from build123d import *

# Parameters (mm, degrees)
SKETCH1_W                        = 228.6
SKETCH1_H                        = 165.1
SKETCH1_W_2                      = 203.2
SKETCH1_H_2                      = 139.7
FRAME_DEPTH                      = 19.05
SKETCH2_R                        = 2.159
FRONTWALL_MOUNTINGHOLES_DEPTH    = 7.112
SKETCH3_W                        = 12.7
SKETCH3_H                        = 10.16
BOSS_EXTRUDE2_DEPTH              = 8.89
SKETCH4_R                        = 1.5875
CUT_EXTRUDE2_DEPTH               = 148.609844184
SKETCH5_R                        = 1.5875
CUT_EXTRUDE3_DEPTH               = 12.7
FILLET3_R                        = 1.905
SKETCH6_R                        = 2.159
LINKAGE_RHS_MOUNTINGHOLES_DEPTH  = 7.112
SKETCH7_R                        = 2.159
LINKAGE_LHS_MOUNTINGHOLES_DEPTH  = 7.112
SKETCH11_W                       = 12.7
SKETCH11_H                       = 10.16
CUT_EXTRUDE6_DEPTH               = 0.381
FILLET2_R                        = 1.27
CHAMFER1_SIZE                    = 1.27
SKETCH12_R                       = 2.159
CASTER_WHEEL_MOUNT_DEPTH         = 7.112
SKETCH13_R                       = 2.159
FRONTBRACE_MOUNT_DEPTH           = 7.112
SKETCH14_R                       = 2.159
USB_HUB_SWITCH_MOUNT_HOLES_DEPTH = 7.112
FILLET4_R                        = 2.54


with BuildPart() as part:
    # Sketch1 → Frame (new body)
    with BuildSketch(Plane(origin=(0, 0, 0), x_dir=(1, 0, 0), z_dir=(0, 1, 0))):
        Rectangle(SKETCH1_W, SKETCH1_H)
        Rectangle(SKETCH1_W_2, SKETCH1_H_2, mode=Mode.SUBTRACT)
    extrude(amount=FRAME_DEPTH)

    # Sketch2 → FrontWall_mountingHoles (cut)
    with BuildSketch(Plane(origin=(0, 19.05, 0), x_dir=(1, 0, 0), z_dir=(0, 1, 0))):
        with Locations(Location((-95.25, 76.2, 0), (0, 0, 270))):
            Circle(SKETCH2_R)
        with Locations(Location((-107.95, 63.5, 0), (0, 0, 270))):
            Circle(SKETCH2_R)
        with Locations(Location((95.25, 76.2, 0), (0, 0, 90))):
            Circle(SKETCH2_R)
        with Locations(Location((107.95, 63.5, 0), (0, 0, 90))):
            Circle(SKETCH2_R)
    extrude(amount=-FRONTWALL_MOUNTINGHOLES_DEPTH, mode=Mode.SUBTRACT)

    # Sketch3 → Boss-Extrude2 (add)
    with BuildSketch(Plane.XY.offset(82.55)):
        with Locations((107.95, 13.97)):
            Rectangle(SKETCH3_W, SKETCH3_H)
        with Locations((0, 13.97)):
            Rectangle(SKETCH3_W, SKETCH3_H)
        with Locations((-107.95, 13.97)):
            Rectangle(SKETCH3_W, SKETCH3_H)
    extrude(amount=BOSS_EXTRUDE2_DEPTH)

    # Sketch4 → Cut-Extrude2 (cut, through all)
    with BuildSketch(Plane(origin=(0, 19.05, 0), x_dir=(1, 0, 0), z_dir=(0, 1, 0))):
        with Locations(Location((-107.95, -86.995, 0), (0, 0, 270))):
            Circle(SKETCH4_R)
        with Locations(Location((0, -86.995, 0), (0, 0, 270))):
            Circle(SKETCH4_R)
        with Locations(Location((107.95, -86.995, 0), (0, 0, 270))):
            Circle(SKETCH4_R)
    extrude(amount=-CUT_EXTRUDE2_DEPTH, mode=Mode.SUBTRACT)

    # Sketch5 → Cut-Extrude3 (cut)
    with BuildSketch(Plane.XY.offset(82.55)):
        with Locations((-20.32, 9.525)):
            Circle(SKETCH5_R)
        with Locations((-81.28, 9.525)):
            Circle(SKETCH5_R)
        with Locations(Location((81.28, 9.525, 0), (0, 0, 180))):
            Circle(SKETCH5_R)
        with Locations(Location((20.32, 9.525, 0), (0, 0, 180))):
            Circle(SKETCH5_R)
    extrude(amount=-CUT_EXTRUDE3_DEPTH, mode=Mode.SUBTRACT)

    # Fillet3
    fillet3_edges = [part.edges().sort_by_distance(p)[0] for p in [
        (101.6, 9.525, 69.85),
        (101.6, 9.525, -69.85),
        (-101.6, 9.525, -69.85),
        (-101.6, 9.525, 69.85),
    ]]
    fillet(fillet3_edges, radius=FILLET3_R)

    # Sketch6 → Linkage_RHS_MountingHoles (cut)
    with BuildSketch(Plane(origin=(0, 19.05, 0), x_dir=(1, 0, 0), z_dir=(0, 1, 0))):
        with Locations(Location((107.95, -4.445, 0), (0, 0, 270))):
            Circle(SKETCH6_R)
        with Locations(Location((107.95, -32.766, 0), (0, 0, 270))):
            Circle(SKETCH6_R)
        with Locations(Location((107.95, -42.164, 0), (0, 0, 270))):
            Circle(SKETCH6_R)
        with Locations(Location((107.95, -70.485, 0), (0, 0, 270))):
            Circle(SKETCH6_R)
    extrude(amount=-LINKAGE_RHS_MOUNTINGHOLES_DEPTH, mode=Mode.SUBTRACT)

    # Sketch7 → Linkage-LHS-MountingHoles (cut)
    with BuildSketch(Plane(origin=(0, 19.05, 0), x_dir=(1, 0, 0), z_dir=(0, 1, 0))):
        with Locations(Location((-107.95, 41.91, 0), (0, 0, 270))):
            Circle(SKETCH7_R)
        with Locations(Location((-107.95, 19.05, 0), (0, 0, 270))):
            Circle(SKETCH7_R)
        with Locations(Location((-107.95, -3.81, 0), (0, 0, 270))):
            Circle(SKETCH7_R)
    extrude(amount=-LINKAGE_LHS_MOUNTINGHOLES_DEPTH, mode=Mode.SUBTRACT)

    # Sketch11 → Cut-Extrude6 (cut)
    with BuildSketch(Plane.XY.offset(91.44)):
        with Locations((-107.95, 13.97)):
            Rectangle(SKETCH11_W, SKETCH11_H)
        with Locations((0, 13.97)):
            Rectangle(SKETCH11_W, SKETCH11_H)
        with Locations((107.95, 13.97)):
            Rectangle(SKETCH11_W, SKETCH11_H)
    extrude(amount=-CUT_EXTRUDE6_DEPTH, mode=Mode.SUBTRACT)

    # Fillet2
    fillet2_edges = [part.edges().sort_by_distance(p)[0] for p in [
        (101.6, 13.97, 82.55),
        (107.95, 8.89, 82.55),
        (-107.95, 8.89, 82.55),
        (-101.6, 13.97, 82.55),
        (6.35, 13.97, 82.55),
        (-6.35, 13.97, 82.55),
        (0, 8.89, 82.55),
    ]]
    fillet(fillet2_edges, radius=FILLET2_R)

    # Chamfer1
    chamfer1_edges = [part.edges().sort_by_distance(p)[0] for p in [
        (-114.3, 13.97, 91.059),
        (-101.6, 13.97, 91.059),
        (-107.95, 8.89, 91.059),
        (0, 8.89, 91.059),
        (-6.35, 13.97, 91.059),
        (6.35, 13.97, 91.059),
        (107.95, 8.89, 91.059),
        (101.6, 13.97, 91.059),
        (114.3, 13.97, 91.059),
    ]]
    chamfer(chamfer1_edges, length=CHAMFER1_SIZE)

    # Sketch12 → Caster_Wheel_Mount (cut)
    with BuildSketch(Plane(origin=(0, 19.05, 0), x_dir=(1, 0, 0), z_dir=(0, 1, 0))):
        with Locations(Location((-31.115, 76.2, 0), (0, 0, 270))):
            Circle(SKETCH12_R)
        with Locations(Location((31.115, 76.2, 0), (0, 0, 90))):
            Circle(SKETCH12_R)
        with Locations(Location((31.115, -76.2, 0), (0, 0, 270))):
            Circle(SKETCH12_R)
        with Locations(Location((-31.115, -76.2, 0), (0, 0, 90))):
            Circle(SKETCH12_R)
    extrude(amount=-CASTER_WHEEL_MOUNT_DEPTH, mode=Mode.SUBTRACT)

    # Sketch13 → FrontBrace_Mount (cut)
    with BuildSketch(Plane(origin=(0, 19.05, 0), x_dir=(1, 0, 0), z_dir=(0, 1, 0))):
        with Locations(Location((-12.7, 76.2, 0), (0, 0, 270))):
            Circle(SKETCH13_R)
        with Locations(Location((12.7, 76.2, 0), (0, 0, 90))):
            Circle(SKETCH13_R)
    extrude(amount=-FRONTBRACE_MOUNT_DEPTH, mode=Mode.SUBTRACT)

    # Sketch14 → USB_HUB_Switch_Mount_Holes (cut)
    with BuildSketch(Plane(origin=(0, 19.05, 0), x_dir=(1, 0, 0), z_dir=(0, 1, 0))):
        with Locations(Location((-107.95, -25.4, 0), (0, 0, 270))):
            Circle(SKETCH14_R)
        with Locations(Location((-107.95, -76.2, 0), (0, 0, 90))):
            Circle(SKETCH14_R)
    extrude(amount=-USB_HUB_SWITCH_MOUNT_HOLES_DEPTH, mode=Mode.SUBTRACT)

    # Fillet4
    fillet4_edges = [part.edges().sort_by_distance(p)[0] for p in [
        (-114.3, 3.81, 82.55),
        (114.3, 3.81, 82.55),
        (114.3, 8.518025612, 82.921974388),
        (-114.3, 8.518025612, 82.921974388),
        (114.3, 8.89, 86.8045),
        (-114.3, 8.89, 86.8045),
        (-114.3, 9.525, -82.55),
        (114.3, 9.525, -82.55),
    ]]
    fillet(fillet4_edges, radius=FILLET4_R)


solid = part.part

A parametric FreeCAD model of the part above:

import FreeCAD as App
import Part
import Sketcher
from FreeCAD import Vector
Q = App.Units.Quantity


def edges_at(feature, points):
    """Names of the edges that pass closest to the given points."""
    edges = feature.Shape.Edges
    near = lambda p: min(range(len(edges)), key=lambda i: edges[i].distToShape(Part.Vertex(*p))[0])
    return sorted({f"Edge{near(p) + 1}" for p in points})


def add_polygon(sketch, points):
    """Adds a closed chain of lines whose ends are joined by coincident constraints."""
    first, n = sketch.GeometryCount, len(points)
    for a, b in zip(points, points[1:] + points[:1]):
        sketch.addGeometry(Part.LineSegment(App.Vector(*a, 0), App.Vector(*b, 0)), False)
    for i in range(n):
        sketch.addConstraint(Sketcher.Constraint("Coincident", first + i, 2, first + (i + 1) % n, 1))

doc = App.newDocument("Part")
body = doc.addObject("PartDesign::Body", "Body")

sketch1 = doc.addObject("Sketcher::SketchObject", "Sketch")
body.addObject(sketch1)
sketch1.AttachmentSupport = (doc.XZ_Plane, [""])
sketch1.MapMode = "FlatFace"
add_polygon(sketch1, [(-114, -83), (-114, 83), (114, 83), (114, -83)])
add_polygon(sketch1, [(102, 70), (-102, 70), (-102, -70), (102, -70)])
sketch1.addConstraint([
    Sketcher.Constraint("Vertical", 0),
    Sketcher.Constraint("Horizontal", 1),
    Sketcher.Constraint("Vertical", 2),
    Sketcher.Constraint("Horizontal", 3),
    Sketcher.Constraint("Horizontal", 4),
    Sketcher.Constraint("Vertical", 5),
    Sketcher.Constraint("Horizontal", 6),
    Sketcher.Constraint("Vertical", 7),
    Sketcher.Constraint("Symmetric", 0, 2, 2, 2, -1, 1),
    Sketcher.Constraint("Symmetric", 4, 2, 6, 2, -1, 1),
    Sketcher.Constraint("DistanceX", 1, 1, 1, 2, Q("9 in")),
    Sketcher.Constraint("DistanceX", 4, 2, 4, 1, Q("8 in")),
    Sketcher.Constraint("DistanceY", 0, 1, 0, 2, Q("6.5 in")),
    Sketcher.Constraint("DistanceY", 5, 2, 5, 1, Q("5.5 in")),
])
pad1 = doc.addObject("PartDesign::Pad", "Pad")
body.addObject(pad1)
pad1.Profile = sketch1
pad1.Length = Q("0.75 in")
pad1.Reversed = True

sketch2 = doc.addObject("Sketcher::SketchObject", "Sketch001")
body.addObject(sketch2)
sketch2.AttachmentSupport = (doc.XZ_Plane, [""])
sketch2.MapMode = "FlatFace"
sketch2.AttachmentOffset = App.Placement(Vector(0, 0, -0.75 * 25.4), App.Rotation())
sketch2.addGeometry([
    Part.Circle(Vector(-95.2, -76.2, 0), Vector(0, 0, 1), 2.2),
    Part.Circle(Vector(-108, -63.5, 0), Vector(0, 0, 1), 2.2),
    Part.Circle(Vector(95.2, -76.2, 0), Vector(0, 0, 1), 2.2),
    Part.Circle(Vector(108, -63.5, 0), Vector(0, 0, 1), 2.2),
], False)
sketch2.addConstraint([
    Sketcher.Constraint("Equal", 0, 1),
    Sketcher.Constraint("Equal", 1, 2),
    Sketcher.Constraint("Equal", 2, 3),
    Sketcher.Constraint("Symmetric", 0, 3, 2, 3, -2),
    Sketcher.Constraint("Symmetric", 1, 3, 3, 3, -2),
    Sketcher.Constraint("Diameter", 0, Q("0.17 in")),
    Sketcher.Constraint("DistanceY", 0, 3, -1, 1, Q("3 in")),
    Sketcher.Constraint("DistanceX", 1, 3, 2, 3, Q("8 in")),
    Sketcher.Constraint("DistanceY", 1, 3, -1, 1, Q("2.5 in")),
    Sketcher.Constraint("DistanceX", 1, 3, 0, 3, Q("0.5 in")),
])
pocket1 = doc.addObject("PartDesign::Pocket", "Pocket")
body.addObject(pocket1)
pocket1.Profile = sketch2
pocket1.Length = Q("0.28 in")
pocket1.Reversed = True

sketch3 = doc.addObject("Sketcher::SketchObject", "Sketch002")
body.addObject(sketch3)
sketch3.AttachmentSupport = (doc.XY_Plane, [""])
sketch3.MapMode = "FlatFace"
sketch3.AttachmentOffset = App.Placement(Vector(0, 0, 3.25 * 25.4), App.Rotation())
add_polygon(sketch3, [(102, 19), (102, 9), (114, 9), (114, 19)])
add_polygon(sketch3, [(-6, 19), (-6, 9), (6, 9), (6, 19)])
add_polygon(sketch3, [(-114, 19), (-114, 9), (-102, 9), (-102, 19)])
sketch3.addConstraint([
    Sketcher.Constraint("Vertical", 0),
    Sketcher.Constraint("Horizontal", 1),
    Sketcher.Constraint("Vertical", 2),
    Sketcher.Constraint("Horizontal", 3),
    Sketcher.Constraint("Vertical", 4),
    Sketcher.Constraint("Horizontal", 5),
    Sketcher.Constraint("Vertical", 6),
    Sketcher.Constraint("Horizontal", 7),
    Sketcher.Constraint("Vertical", 8),
    Sketcher.Constraint("Horizontal", 9),
    Sketcher.Constraint("Vertical", 10),
    Sketcher.Constraint("Horizontal", 11),
    Sketcher.Constraint("Symmetric", 1, 2, 8, 2, -2),
    Sketcher.Constraint("Symmetric", 3, 2, 10, 2, -2),
    Sketcher.Constraint("Horizontal", 1, 2, 4, 2),
    Sketcher.Constraint("Horizontal", 3, 2, 6, 2),
    Sketcher.Constraint("Equal", 3, 5),
    Sketcher.Constraint("DistanceX", 1, 1, 1, 2, Q("0.5 in")),
    Sketcher.Constraint("DistanceY", 0, 2, 0, 1, Q("0.4 in")),
    Sketcher.Constraint("DistanceX", -1, 1, 0, 2, Q("4 in")),
    Sketcher.Constraint("DistanceY", -1, 1, 0, 2, Q("0.35 in")),
    Sketcher.Constraint("DistanceX", 4, 2, -1, 1, Q("0.25 in")),
])
pad2 = doc.addObject("PartDesign::Pad", "Pad001")
body.addObject(pad2)
pad2.Profile = sketch3
pad2.Length = Q("0.35 in")

sketch4 = doc.addObject("Sketcher::SketchObject", "Sketch003")
body.addObject(sketch4)
sketch4.AttachmentSupport = (doc.XZ_Plane, [""])
sketch4.MapMode = "FlatFace"
sketch4.AttachmentOffset = App.Placement(Vector(0, 0, -0.75 * 25.4), App.Rotation())
sketch4.addGeometry([
    Part.Circle(Vector(-108, 87, 0), Vector(0, 0, 1), 1.6),
    Part.Circle(Vector(0, 87, 0), Vector(0, 0, 1), 1.6),
    Part.Circle(Vector(108, 87, 0), Vector(0, 0, 1), 1.6),
], False)
sketch4.addConstraint([
    Sketcher.Constraint("Equal", 0, 1),
    Sketcher.Constraint("Equal", 1, 2),
    Sketcher.Constraint("Symmetric", 0, 3, 2, 3, -2),
    Sketcher.Constraint("PointOnObject", 1, 3, -2),
    Sketcher.Constraint("Horizontal", 0, 3, 1, 3),
    Sketcher.Constraint("Diameter", 0, Q("0.125 in")),
    Sketcher.Constraint("DistanceX", 0, 3, 2, 3, Q("8.5 in")),
    Sketcher.Constraint("DistanceY", -1, 1, 0, 3, Q("3.425 in")),
])
pocket2 = doc.addObject("PartDesign::Pocket", "Pocket001")
body.addObject(pocket2)
pocket2.Profile = sketch4
pocket2.Type = "ThroughAll"
pocket2.Reversed = True

sketch5 = doc.addObject("Sketcher::SketchObject", "Sketch004")
body.addObject(sketch5)
sketch5.AttachmentSupport = (doc.XY_Plane, [""])
sketch5.MapMode = "FlatFace"
sketch5.AttachmentOffset = App.Placement(Vector(0, 0, 3.25 * 25.4), App.Rotation())
sketch5.addGeometry([
    Part.Circle(Vector(-20.3, 9.5, 0), Vector(0, 0, 1), 1.6),
    Part.Circle(Vector(-81.3, 9.5, 0), Vector(0, 0, 1), 1.6),
    Part.Circle(Vector(81.3, 9.5, 0), Vector(0, 0, 1), 1.6),
    Part.Circle(Vector(20.3, 9.5, 0), Vector(0, 0, 1), 1.6),
], False)
sketch5.addConstraint([
    Sketcher.Constraint("Equal", 0, 1),
    Sketcher.Constraint("Equal", 1, 2),
    Sketcher.Constraint("Equal", 2, 3),
    Sketcher.Constraint("Symmetric", 1, 3, 2, 3, -2),
    Sketcher.Constraint("Symmetric", 0, 3, 3, 3, -2),
    Sketcher.Constraint("Horizontal", 0, 3, 1, 3),
    Sketcher.Constraint("Diameter", 0, Q("0.125 in")),
    Sketcher.Constraint("DistanceX", 0, 3, 2, 3, Q("4 in")),
    Sketcher.Constraint("DistanceX", 0, 3, -1, 1, Q("0.8 in")),
    Sketcher.Constraint("DistanceY", -1, 1, 0, 3, Q("0.375 in")),
])
pocket3 = doc.addObject("PartDesign::Pocket", "Pocket002")
body.addObject(pocket3)
pocket3.Profile = sketch5
pocket3.Length = Q("0.5 in")
doc.recompute()

fillet = doc.addObject("PartDesign::Fillet", "Fillet")
body.addObject(fillet)
fillet.Base = (pocket3, edges_at(pocket3, [
    (101.6, 9.525, 69.85),
    (101.6, 9.525, -69.85),
    (-101.6, 9.525, -69.85),
    (-101.6, 9.525, 69.85),
]))
fillet.Radius = Q("0.075 in")

sketch6 = doc.addObject("Sketcher::SketchObject", "Sketch005")
body.addObject(sketch6)
sketch6.AttachmentSupport = (doc.XZ_Plane, [""])
sketch6.MapMode = "FlatFace"
sketch6.AttachmentOffset = App.Placement(Vector(0, 0, -0.75 * 25.4), App.Rotation())
sketch6.addGeometry([
    Part.Circle(Vector(108, 4.4, 0), Vector(0, 0, 1), 2.2),
    Part.Circle(Vector(108, 32.8, 0), Vector(0, 0, 1), 2.2),
    Part.Circle(Vector(108, 42.2, 0), Vector(0, 0, 1), 2.2),
    Part.Circle(Vector(108, 70.5, 0), Vector(0, 0, 1), 2.2),
], False)
sketch6.addConstraint([
    Sketcher.Constraint("Equal", 0, 1),
    Sketcher.Constraint("Equal", 1, 2),
    Sketcher.Constraint("Equal", 2, 3),
    Sketcher.Constraint("Vertical", 0, 3, 1, 3),
    Sketcher.Constraint("Vertical", 1, 3, 2, 3),
    Sketcher.Constraint("Vertical", 2, 3, 3, 3),
    Sketcher.Constraint("Diameter", 0, Q("0.17 in")),
    Sketcher.Constraint("DistanceY", 0, 3, 3, 3, Q("2.6 in")),
    Sketcher.Constraint("DistanceX", -1, 1, 0, 3, Q("4.25 in")),
    Sketcher.Constraint("DistanceY", -1, 1, 1, 3, Q("1.29 in")),
    Sketcher.Constraint("DistanceY", -1, 1, 2, 3, Q("1.66 in")),
    Sketcher.Constraint("DistanceY", -1, 1, 0, 3, Q("0.175 in")),
])
pocket4 = doc.addObject("PartDesign::Pocket", "Pocket003")
body.addObject(pocket4)
pocket4.Profile = sketch6
pocket4.Length = Q("0.28 in")
pocket4.Reversed = True

sketch7 = doc.addObject("Sketcher::SketchObject", "Sketch006")
body.addObject(sketch7)
sketch7.AttachmentSupport = (doc.XZ_Plane, [""])
sketch7.MapMode = "FlatFace"
sketch7.AttachmentOffset = App.Placement(Vector(0, 0, -0.75 * 25.4), App.Rotation())
sketch7.addGeometry([
    Part.Circle(Vector(-108, -41.9, 0), Vector(0, 0, 1), 2.2),
    Part.Circle(Vector(-108, -19.1, 0), Vector(0, 0, 1), 2.2),
    Part.Circle(Vector(-108, 3.8, 0), Vector(0, 0, 1), 2.2),
], False)
sketch7.addConstraint([
    Sketcher.Constraint("Equal", 0, 1),
    Sketcher.Constraint("Equal", 1, 2),
    Sketcher.Constraint("Vertical", 0, 3, 1, 3),
    Sketcher.Constraint("Vertical", 1, 3, 2, 3),
    Sketcher.Constraint("Diameter", 0, Q("0.17 in")),
    Sketcher.Constraint("DistanceY", 0, 3, 1, 3, Q("0.9 in")),
    Sketcher.Constraint("DistanceY", 1, 3, 2, 3, Q("0.9 in")),
    Sketcher.Constraint("DistanceX", 0, 3, -1, 1, Q("4.25 in")),
    Sketcher.Constraint("DistanceY", 0, 3, -1, 1, Q("1.65 in")),
])
pocket5 = doc.addObject("PartDesign::Pocket", "Pocket004")
body.addObject(pocket5)
pocket5.Profile = sketch7
pocket5.Length = Q("0.28 in")
pocket5.Reversed = True

sketch8 = doc.addObject("Sketcher::SketchObject", "Sketch007")
body.addObject(sketch8)
sketch8.AttachmentSupport = (doc.XY_Plane, [""])
sketch8.MapMode = "FlatFace"
sketch8.AttachmentOffset = App.Placement(Vector(0, 0, 3.6 * 25.4), App.Rotation())
add_polygon(sketch8, [(-114, 19), (-114, 9), (-102, 9), (-102, 19)])
add_polygon(sketch8, [(-6, 19), (-6, 9), (6, 9), (6, 19)])
add_polygon(sketch8, [(102, 19), (102, 9), (114, 9), (114, 19)])
sketch8.addConstraint([
    Sketcher.Constraint("Vertical", 0),
    Sketcher.Constraint("Horizontal", 1),
    Sketcher.Constraint("Vertical", 2),
    Sketcher.Constraint("Horizontal", 3),
    Sketcher.Constraint("Vertical", 4),
    Sketcher.Constraint("Horizontal", 5),
    Sketcher.Constraint("Vertical", 6),
    Sketcher.Constraint("Horizontal", 7),
    Sketcher.Constraint("Vertical", 8),
    Sketcher.Constraint("Horizontal", 9),
    Sketcher.Constraint("Vertical", 10),
    Sketcher.Constraint("Horizontal", 11),
    Sketcher.Constraint("Symmetric", 1, 2, 8, 2, -2),
    Sketcher.Constraint("Symmetric", 3, 2, 10, 2, -2),
    Sketcher.Constraint("Horizontal", 1, 2, 4, 2),
    Sketcher.Constraint("Horizontal", 3, 2, 6, 2),
    Sketcher.Constraint("Equal", 3, 5),
    Sketcher.Constraint("DistanceX", 1, 1, 1, 2, Q("0.5 in")),
    Sketcher.Constraint("DistanceY", 0, 2, 0, 1, Q("0.4 in")),
    Sketcher.Constraint("DistanceX", 1, 2, -1, 1, Q("4 in")),
    Sketcher.Constraint("DistanceY", -1, 1, 0, 2, Q("0.35 in")),
    Sketcher.Constraint("DistanceX", 4, 2, -1, 1, Q("0.25 in")),
])
pocket6 = doc.addObject("PartDesign::Pocket", "Pocket005")
body.addObject(pocket6)
pocket6.Profile = sketch8
pocket6.Length = Q("0.015 in")
doc.recompute()

fillet2 = doc.addObject("PartDesign::Fillet", "Fillet001")
body.addObject(fillet2)
fillet2.Base = (pocket6, edges_at(pocket6, [
    (101.6, 13.97, 82.55),
    (107.95, 8.89, 82.55),
    (-107.95, 8.89, 82.55),
    (-101.6, 13.97, 82.55),
    (6.35, 13.97, 82.55),
    (-6.35, 13.97, 82.55),
    (0, 8.89, 82.55),
]))
fillet2.Radius = Q("0.05 in")
doc.recompute()

chamfer = doc.addObject("PartDesign::Chamfer", "Chamfer")
body.addObject(chamfer)
chamfer.Base = (fillet2, edges_at(fillet2, [
    (-114.3, 13.97, 91.059),
    (-101.6, 13.97, 91.059),
    (-107.95, 8.89, 91.059),
    (0, 8.89, 91.059),
    (-6.35, 13.97, 91.059),
    (6.35, 13.97, 91.059),
    (107.95, 8.89, 91.059),
    (101.6, 13.97, 91.059),
    (114.3, 13.97, 91.059),
]))
chamfer.Size = Q("0.05 in")

sketch9 = doc.addObject("Sketcher::SketchObject", "Sketch008")
body.addObject(sketch9)
sketch9.AttachmentSupport = (doc.XZ_Plane, [""])
sketch9.MapMode = "FlatFace"
sketch9.AttachmentOffset = App.Placement(Vector(0, 0, -0.75 * 25.4), App.Rotation())
sketch9.addGeometry([
    Part.Circle(Vector(-31.1, -76.2, 0), Vector(0, 0, 1), 2.2),
    Part.Circle(Vector(31.1, -76.2, 0), Vector(0, 0, 1), 2.2),
    Part.Circle(Vector(31.1, 76.2, 0), Vector(0, 0, 1), 2.2),
    Part.Circle(Vector(-31.1, 76.2, 0), Vector(0, 0, 1), 2.2),
], False)
sketch9.addConstraint([
    Sketcher.Constraint("Equal", 0, 1),
    Sketcher.Constraint("Equal", 1, 2),
    Sketcher.Constraint("Equal", 2, 3),
    Sketcher.Constraint("Symmetric", 0, 3, 2, 3, -1, 1),
    Sketcher.Constraint("Symmetric", 1, 3, 3, 3, -1, 1),
    Sketcher.Constraint("Symmetric", 0, 3, 1, 3, -2),
    Sketcher.Constraint("Diameter", 0, Q("0.17 in")),
    Sketcher.Constraint("DistanceY", 0, 3, -1, 1, Q("3 in")),
    Sketcher.Constraint("DistanceX", 0, 3, 1, 3, Q("2.45 in")),
])
pocket7 = doc.addObject("PartDesign::Pocket", "Pocket006")
body.addObject(pocket7)
pocket7.Profile = sketch9
pocket7.Length = Q("0.28 in")
pocket7.Reversed = True

sketch10 = doc.addObject("Sketcher::SketchObject", "Sketch009")
body.addObject(sketch10)
sketch10.AttachmentSupport = (doc.XZ_Plane, [""])
sketch10.MapMode = "FlatFace"
sketch10.AttachmentOffset = App.Placement(Vector(0, 0, -0.75 * 25.4), App.Rotation())
sketch10.addGeometry([
    Part.Circle(Vector(-12.7, -76.2, 0), Vector(0, 0, 1), 2.2),
    Part.Circle(Vector(12.7, -76.2, 0), Vector(0, 0, 1), 2.2),
], False)
sketch10.addConstraint([
    Sketcher.Constraint("Equal", 0, 1),
    Sketcher.Constraint("Symmetric", 0, 3, 1, 3, -2),
    Sketcher.Constraint("Diameter", 0, Q("0.17 in")),
    Sketcher.Constraint("DistanceY", 0, 3, -1, 1, Q("3 in")),
    Sketcher.Constraint("DistanceX", 0, 3, 1, 3, Q("1 in")),
])
pocket8 = doc.addObject("PartDesign::Pocket", "Pocket007")
body.addObject(pocket8)
pocket8.Profile = sketch10
pocket8.Length = Q("0.28 in")
pocket8.Reversed = True

sketch11 = doc.addObject("Sketcher::SketchObject", "Sketch010")
body.addObject(sketch11)
sketch11.AttachmentSupport = (doc.XZ_Plane, [""])
sketch11.MapMode = "FlatFace"
sketch11.AttachmentOffset = App.Placement(Vector(0, 0, -0.75 * 25.4), App.Rotation())
sketch11.addGeometry([
    Part.Circle(Vector(-108, 25.4, 0), Vector(0, 0, 1), 2.2),
    Part.Circle(Vector(-108, 76.2, 0), Vector(0, 0, 1), 2.2),
], False)
sketch11.addConstraint([
    Sketcher.Constraint("Equal", 0, 1),
    Sketcher.Constraint("Vertical", 0, 3, 1, 3),
    Sketcher.Constraint("Diameter", 0, Q("0.17 in")),
    Sketcher.Constraint("DistanceY", -1, 1, 0, 3, Q("1 in")),
    Sketcher.Constraint("DistanceY", -1, 1, 1, 3, Q("3 in")),
    Sketcher.Constraint("DistanceX", 0, 3, -1, 1, Q("4.25 in")),
])
pocket9 = doc.addObject("PartDesign::Pocket", "Pocket008")
body.addObject(pocket9)
pocket9.Profile = sketch11
pocket9.Length = Q("0.28 in")
pocket9.Reversed = True
doc.recompute()

fillet3 = doc.addObject("PartDesign::Fillet", "Fillet002")
body.addObject(fillet3)
fillet3.Base = (pocket9, edges_at(pocket9, [
    (-114.3, 3.81, 82.55),
    (114.3, 3.81, 82.55),
    (114.3, 8.518, 82.922),
    (-114.3, 8.518, 82.922),
    (114.3, 8.89, 86.805),
    (-114.3, 8.89, 86.805),
    (-114.3, 9.525, -82.55),
    (114.3, 9.525, -82.55),
]))
fillet3.Radius = Q("0.1 in")

doc.recompute()
